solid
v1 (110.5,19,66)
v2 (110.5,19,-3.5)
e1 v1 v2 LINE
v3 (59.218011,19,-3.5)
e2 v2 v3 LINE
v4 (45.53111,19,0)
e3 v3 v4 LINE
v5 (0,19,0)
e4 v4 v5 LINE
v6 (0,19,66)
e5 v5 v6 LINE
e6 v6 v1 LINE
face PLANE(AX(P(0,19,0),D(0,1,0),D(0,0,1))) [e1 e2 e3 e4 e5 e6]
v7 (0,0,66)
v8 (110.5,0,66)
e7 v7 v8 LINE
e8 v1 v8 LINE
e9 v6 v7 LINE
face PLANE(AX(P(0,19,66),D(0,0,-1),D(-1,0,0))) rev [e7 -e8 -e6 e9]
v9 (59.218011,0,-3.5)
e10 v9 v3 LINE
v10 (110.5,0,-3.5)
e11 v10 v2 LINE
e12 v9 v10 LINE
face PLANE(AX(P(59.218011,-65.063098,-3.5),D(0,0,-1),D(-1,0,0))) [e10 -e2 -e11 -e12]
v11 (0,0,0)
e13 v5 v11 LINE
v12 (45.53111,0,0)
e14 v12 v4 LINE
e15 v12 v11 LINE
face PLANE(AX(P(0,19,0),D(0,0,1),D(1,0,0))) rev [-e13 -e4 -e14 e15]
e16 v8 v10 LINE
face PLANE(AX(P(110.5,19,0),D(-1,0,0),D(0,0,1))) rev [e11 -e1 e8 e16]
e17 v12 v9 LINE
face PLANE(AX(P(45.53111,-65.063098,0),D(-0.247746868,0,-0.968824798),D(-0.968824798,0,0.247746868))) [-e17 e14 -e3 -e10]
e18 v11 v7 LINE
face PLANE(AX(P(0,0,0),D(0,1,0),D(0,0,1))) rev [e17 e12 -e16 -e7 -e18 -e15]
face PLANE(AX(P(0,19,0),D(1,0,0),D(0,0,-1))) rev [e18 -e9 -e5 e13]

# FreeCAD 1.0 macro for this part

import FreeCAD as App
import Part
import Sketcher
Q = App.Units.Quantity

doc = App.newDocument("Part")
body = doc.addObject("PartDesign::Body", "Body")

# Sketch on XZ plane
sketch1 = body.newObject("Sketcher::SketchObject", "Sketch")
sketch1.AttachmentSupport = (doc.getObject("XZ_Plane"), [""])
sketch1.MapMode = "FlatFace"
sketch1.addGeometry([
    Part.LineSegment(App.Vector(0, 0, 0), App.Vector(0, 66, 0)),
    Part.LineSegment(App.Vector(0, 66, 0), App.Vector(110.5, 66, 0)),
    Part.LineSegment(App.Vector(110.5, 66, 0), App.Vector(110.5, 0, 0)),
    Part.LineSegment(App.Vector(110.5, 0, 0), App.Vector(0, 0, 0)),
], False)
sketch1.addConstraint([
    Sketcher.Constraint("Coincident", 0, 2, 1, 1),
    Sketcher.Constraint("Coincident", 1, 2, 2, 1),
    Sketcher.Constraint("Coincident", 2, 2, 3, 1),
    Sketcher.Constraint("Coincident", 3, 2, 0, 1),
    Sketcher.Constraint("Vertical", 0),
    Sketcher.Constraint("Horizontal", 1),
    Sketcher.Constraint("Vertical", 2),
    Sketcher.Constraint("Horizontal", 3),
    Sketcher.Constraint("Coincident", 3, 2, -1, 1),
    Sketcher.Constraint("DistanceY", 0, 1, 0, 2, Q("66 mm")),
    Sketcher.Constraint("DistanceX", 1, 1, 1, 2, Q("110.5 mm")),
])
pad1 = body.newObject("PartDesign::Pad", "Pad")
pad1.Profile = sketch1
pad1.Length = 19
pad1.Reversed = True

# Sketch on XZ plane
sketch2 = body.newObject("Sketcher::SketchObject", "Sketch001")
sketch2.AttachmentSupport = (doc.getObject("XZ_Plane"), [""])
sketch2.MapMode = "FlatFace"
sketch2.AttachmentOffset = App.Placement(App.Vector(0, 0, -19), App.Rotation())
sketch2.addGeometry([
    Part.LineSegment(App.Vector(45.53111, 0, 0), App.Vector(110.5, 0, 0)),
    Part.LineSegment(App.Vector(110.5, 0, 0), App.Vector(110.5, -3.5, 0)),
    Part.LineSegment(App.Vector(110.5, -3.5, 0), App.Vector(59.218011, -3.5, 0)),
    Part.LineSegment(App.Vector(59.218011, -3.5, 0), App.Vector(45.53111, 0, 0)),
], False)
sketch2.addConstraint([
    Sketcher.Constraint("Coincident", 0, 2, 1, 1),
    Sketcher.Constraint("Coincident", 1, 2, 2, 1),
    Sketcher.Constraint("Coincident", 2, 2, 3, 1),
    Sketcher.Constraint("Coincident", 3, 2, 0, 1),
    Sketcher.Constraint("Horizontal", 0),
    Sketcher.Constraint("Vertical", 1),
    Sketcher.Constraint("Horizontal", 2),
    Sketcher.Constraint("PointOnObject", 0, 2, -1),
    Sketcher.Constraint("DistanceY", 1, 2, 1, 1, Q("3.5 mm")),
    Sketcher.Constraint("DistanceX", -1, 1, 0, 2, Q("110.5 mm")),
    Sketcher.Constraint("DistanceX", 0, 1, 0, 2, Q("64.96889 mm")),
    Sketcher.Constraint("DistanceX", 2, 2, 2, 1, Q("51.281989 mm")),
])
pad2 = body.newObject("PartDesign::Pad", "Pad001")
pad2.Profile = sketch2
pad2.Length = 19

doc.recompute()
